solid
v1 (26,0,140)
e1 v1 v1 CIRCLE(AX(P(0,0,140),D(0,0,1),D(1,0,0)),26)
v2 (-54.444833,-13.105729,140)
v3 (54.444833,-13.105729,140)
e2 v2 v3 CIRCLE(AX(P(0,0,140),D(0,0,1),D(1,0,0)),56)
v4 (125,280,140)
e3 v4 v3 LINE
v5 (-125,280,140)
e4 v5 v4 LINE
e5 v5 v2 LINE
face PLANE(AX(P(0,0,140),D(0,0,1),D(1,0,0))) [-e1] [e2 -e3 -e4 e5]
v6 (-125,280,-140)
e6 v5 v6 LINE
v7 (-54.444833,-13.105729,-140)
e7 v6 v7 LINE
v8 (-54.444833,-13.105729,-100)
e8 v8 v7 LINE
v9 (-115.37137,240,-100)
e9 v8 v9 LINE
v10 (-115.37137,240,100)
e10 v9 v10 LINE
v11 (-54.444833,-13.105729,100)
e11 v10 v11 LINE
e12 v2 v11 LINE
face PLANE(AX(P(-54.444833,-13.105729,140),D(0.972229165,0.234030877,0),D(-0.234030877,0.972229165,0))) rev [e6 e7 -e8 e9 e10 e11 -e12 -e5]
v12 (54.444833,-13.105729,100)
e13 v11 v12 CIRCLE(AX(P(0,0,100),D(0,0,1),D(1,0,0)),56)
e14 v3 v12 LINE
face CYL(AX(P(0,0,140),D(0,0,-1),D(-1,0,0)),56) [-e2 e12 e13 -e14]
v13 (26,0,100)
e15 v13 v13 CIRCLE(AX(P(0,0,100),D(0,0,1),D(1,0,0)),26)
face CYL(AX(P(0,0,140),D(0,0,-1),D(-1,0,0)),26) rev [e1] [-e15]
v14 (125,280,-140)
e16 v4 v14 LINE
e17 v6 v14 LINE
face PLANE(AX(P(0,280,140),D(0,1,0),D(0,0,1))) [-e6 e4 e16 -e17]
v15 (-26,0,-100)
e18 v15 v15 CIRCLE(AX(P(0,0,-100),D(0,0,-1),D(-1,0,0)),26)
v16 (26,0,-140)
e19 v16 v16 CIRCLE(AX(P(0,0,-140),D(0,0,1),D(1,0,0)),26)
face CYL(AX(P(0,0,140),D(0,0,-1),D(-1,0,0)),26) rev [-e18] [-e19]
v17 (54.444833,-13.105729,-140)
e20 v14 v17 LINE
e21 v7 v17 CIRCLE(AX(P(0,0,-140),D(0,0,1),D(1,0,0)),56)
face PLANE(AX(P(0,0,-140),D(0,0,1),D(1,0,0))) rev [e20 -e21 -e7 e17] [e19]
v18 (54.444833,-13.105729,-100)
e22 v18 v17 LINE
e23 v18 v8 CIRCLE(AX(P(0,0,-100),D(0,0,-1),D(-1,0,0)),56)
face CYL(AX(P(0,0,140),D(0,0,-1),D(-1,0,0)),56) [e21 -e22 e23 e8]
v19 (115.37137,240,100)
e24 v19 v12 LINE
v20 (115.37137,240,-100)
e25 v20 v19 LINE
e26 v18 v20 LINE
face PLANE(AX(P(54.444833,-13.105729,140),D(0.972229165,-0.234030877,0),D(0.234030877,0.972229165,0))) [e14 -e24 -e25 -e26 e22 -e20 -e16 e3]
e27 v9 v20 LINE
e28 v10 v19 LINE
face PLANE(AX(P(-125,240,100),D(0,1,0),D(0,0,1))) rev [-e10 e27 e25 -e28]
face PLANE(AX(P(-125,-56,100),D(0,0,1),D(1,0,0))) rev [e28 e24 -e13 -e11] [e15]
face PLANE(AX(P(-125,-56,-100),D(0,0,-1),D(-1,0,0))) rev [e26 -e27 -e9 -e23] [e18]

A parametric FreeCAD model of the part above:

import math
import FreeCAD as App
import Part
import Sketcher

V = App.Vector


def add_polygon(sketch, points):
    """Adds a closed chain of lines whose ends are joined by coincident constraints."""
    first, n = sketch.GeometryCount, len(points)
    for a, b in zip(points, points[1:] + points[:1]):
        sketch.addGeometry(Part.LineSegment(App.Vector(*a, 0), App.Vector(*b, 0)), False)
    for i in range(n):
        sketch.addConstraint(Sketcher.Constraint("Coincident", first + i, 2, first + (i + 1) % n, 1))

doc = App.newDocument("Part")
body = doc.addObject("PartDesign::Body", "Body")

# Sketch on XY plane
sketch1 = body.newObject("Sketcher::SketchObject", "Sketch")
sketch1.AttachmentSupport = (doc.getObject("XY_Plane"), [""])
sketch1.MapMode = "FlatFace"
sketch1.addGeometry([
    Part.LineSegment(V(125, 280, 0), V(-125, 280, 0)),  # 0
    Part.LineSegment(V(-125, 280, 0), V(-54, -13, 0)),  # 1
    Part.ArcOfCircle(Part.Circle(V(0, 0, 0), V(0, 0, 1), 56), math.radians(-166), math.radians(-14)),  # 2
    Part.LineSegment(V(54, -13, 0), V(125, 280, 0)),  # 3
    Part.Circle(V(0, 0, 0), V(0, 0, 1), 26),  # 4
], False)
sketch1.addConstraint([
    Sketcher.Constraint("Coincident", 0, 2, 1, 1),
    Sketcher.Constraint("Tangent", 1, 2, 2, 1),
    Sketcher.Constraint("Tangent", 2, 2, 3, 1),
    Sketcher.Constraint("Coincident", 3, 2, 0, 1),
    Sketcher.Constraint("Horizontal", 0),
    Sketcher.Constraint("Coincident", 2, 3, -1, 1),
    Sketcher.Constraint("Coincident", 4, 3, -1, 1),
    Sketcher.Constraint("Horizontal", 1, 2, 2, 2),
    Sketcher.Constraint("Diameter", 4, 52.0),
    Sketcher.Constraint("Radius", 2, 56.0),
    Sketcher.Constraint("DistanceX", 0, 2, 0, 1, 250.0),
    Sketcher.Constraint("DistanceY", -1, 1, 0, 2, 280.0),
])
pad1 = body.newObject("PartDesign::Pad", "Pad")
pad1.Profile = sketch1
pad1.Length = 280
pad1.Midplane = True

# Sketch on YZ plane
sketch2 = body.newObject("Sketcher::SketchObject", "Sketch001")
sketch2.AttachmentSupport = (doc.getObject("YZ_Plane"), [""])
sketch2.MapMode = "FlatFace"
add_polygon(sketch2, [(240, 100), (-56, 100), (-56, -100), (240, -100)])  # lines 0-3
sketch2.addConstraint([
    Sketcher.Constraint("Horizontal", 0),
    Sketcher.Constraint("Vertical", 1),
    Sketcher.Constraint("Horizontal", 2),
    Sketcher.Constraint("Vertical", 3),
    Sketcher.Constraint("DistanceX", 0, 2, 0, 1, 296.0),
    Sketcher.Constraint("DistanceY", 1, 2, 1, 1, 200.0),
    Sketcher.Constraint("DistanceX", 0, 2, -1, 1, 56.0),
    Sketcher.Constraint("DistanceY", -1, 1, 0, 2, 100.0),
])
pocket1 = body.newObject("PartDesign::Pocket", "Pocket")
pocket1.Profile = sketch2
pocket1.Type = "ThroughAll"
pocket1.Midplane = True

doc.recompute()
